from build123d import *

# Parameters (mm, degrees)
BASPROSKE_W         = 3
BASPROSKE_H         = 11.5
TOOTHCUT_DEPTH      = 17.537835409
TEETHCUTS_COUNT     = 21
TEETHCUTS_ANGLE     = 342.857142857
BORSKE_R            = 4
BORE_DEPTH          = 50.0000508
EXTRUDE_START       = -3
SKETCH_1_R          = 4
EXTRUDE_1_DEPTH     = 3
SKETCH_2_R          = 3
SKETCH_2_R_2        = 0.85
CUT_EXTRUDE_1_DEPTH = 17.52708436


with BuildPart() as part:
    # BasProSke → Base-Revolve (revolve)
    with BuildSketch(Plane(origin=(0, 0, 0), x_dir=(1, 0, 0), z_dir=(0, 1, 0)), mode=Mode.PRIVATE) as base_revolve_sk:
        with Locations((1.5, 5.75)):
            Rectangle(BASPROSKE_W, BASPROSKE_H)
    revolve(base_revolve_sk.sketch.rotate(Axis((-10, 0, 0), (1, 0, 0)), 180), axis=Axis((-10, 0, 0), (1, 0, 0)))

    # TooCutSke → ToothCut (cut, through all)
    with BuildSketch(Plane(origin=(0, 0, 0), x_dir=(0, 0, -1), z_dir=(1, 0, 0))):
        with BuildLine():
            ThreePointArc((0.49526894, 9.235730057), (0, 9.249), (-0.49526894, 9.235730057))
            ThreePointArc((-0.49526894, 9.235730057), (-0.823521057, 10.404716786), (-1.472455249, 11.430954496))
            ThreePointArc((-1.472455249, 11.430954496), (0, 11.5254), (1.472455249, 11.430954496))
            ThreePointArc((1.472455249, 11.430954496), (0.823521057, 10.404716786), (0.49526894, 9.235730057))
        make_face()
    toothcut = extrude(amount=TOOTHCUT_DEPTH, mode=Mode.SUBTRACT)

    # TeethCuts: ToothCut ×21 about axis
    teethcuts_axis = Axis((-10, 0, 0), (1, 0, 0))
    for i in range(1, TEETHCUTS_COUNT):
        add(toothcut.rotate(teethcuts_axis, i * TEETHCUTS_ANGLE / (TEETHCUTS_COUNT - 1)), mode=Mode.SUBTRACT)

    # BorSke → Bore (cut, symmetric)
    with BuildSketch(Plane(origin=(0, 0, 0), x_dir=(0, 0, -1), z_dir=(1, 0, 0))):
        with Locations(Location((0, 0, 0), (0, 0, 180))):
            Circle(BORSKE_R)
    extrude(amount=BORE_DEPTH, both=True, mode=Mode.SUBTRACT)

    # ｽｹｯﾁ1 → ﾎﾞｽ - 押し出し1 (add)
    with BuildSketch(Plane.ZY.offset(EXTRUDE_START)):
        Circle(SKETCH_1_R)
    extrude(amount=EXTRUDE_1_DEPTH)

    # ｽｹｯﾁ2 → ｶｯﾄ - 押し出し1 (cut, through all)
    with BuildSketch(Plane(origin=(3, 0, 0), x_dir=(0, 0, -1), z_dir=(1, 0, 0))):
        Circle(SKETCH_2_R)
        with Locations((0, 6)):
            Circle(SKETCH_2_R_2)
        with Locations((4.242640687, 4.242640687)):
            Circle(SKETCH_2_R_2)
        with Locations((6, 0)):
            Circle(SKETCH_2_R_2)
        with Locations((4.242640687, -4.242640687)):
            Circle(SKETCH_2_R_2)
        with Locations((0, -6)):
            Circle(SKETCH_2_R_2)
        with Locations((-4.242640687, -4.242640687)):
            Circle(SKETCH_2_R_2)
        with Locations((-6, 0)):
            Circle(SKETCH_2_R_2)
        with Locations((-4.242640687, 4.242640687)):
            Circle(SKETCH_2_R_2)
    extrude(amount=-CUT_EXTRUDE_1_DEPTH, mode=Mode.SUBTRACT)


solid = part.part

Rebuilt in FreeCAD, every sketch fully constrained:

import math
import FreeCAD as App
import Part
import Sketcher

V = App.Vector

doc = App.newDocument("Part")
body = doc.addObject("PartDesign::Body", "Body")

# Sketch on XZ plane
sketch1 = body.newObject("Sketcher::SketchObject", "Sketch")
sketch1.AttachmentSupport = (doc.getObject("XZ_Plane"), [""])
sketch1.MapMode = "FlatFace"
sketch1.addGeometry(Part.LineSegment(V(0, -11.5, 0), V(0, 0, 0)), False)
sketch1.addGeometry(Part.LineSegment(V(0, 0, 0), V(3, 0, 0)), False)
sketch1.addGeometry(Part.LineSegment(V(3, 0, 0), V(3, -11.5, 0)), False)
sketch1.addGeometry(Part.LineSegment(V(3, -11.5, 0), V(0, -11.5, 0)), False)
sketch1.addConstraint(Sketcher.Constraint("Coincident", 0, 2, 1, 1))
sketch1.addConstraint(Sketcher.Constraint("Coincident", 1, 2, 2, 1))
sketch1.addConstraint(Sketcher.Constraint("Coincident", 2, 2, 3, 1))
sketch1.addConstraint(Sketcher.Constraint("Coincident", 3, 2, 0, 1))
sketch1.addConstraint(Sketcher.Constraint("Vertical", 0))
sketch1.addConstraint(Sketcher.Constraint("Horizontal", 1))
sketch1.addConstraint(Sketcher.Constraint("Vertical", 2))
sketch1.addConstraint(Sketcher.Constraint("Horizontal", 3))
sketch1.addConstraint(Sketcher.Constraint("Coincident", 0, 2, -1, 1))
sketch1.addConstraint(Sketcher.Constraint("DistanceX", 1, 1, 1, 2, 3.0))
sketch1.addConstraint(Sketcher.Constraint("DistanceY", 0, 1, 0, 2, 11.5))
revolution = body.newObject("PartDesign::Revolution", "Revolution")
revolution.Profile = sketch1
revolution.ReferenceAxis = (sketch1, ["H_Axis"])
revolution.Angle = 360

# Sketch on YZ plane
sketch2 = body.newObject("Sketcher::SketchObject", "Sketch001")
sketch2.AttachmentSupport = (doc.getObject("YZ_Plane"), [""])
sketch2.MapMode = "FlatFace"
sketch2.addGeometry(Part.ArcOfCircle(Part.Circle(V(0, 0, 0), V(0, 0, 1), 9.2), math.radians(-3.07), math.radians(3.07)), False)
sketch2.addGeometry(Part.ArcOfCircle(Part.Circle(V(8.7, -4.7, 0), V(0, 0, 1), 4.2), math.radians(49), math.radians(83)), False)
sketch2.addGeometry(Part.ArcOfCircle(Part.Circle(V(0, 0, 0), V(0, 0, 1), 11.5), math.radians(-7.34), math.radians(7.34)), False)
sketch2.addGeometry(Part.ArcOfCircle(Part.Circle(V(8.7, 4.7, 0), V(0, 0, 1), 4.2), math.radians(-83), math.radians(-49)), False)
sketch2.addConstraint(Sketcher.Constraint("Coincident", 0, 1, 1, 2))
sketch2.addConstraint(Sketcher.Constraint("Coincident", 1, 1, 2, 1))
sketch2.addConstraint(Sketcher.Constraint("Coincident", 2, 2, 3, 2))
sketch2.addConstraint(Sketcher.Constraint("Coincident", 3, 1, 0, 2))
sketch2.addConstraint(Sketcher.Constraint("Coincident", 0, 3, -1, 1))
sketch2.addConstraint(Sketcher.Constraint("Coincident", 2, 3, -1, 1))
sketch2.addConstraint(Sketcher.Constraint("Equal", 1, 3))
sketch2.addConstraint(Sketcher.Constraint("Symmetric", 1, 3, 3, 3, -1))
sketch2.addConstraint(Sketcher.Constraint("Radius", 1, 4.2))
sketch2.addConstraint(Sketcher.Constraint("Radius", 0, 9.249))
sketch2.addConstraint(Sketcher.Constraint("Radius", 2, 11.5254))
sketch2.addConstraint(Sketcher.Constraint("DistanceX", -1, 1, 1, 3, 8.696701))
sketch2.addConstraint(Sketcher.Constraint("DistanceX", -1, 1, 0, 1, 9.23573))
pocket1 = body.newObject("PartDesign::Pocket", "Pocket")
pocket1.Profile = sketch2
pocket1.Type = "ThroughAll"
pocket1.Reversed = True
doc.recompute()

polarpattern = body.newObject("PartDesign::PolarPattern", "PolarPattern")
polarpattern.Originals = [pocket1]
polarpattern.Axis = (doc.getObject("X_Axis"), [""])
polarpattern.Angle = 360
polarpattern.Occurrences = 21
body.Tip = polarpattern

# Sketch on YZ plane
sketch3 = body.newObject("Sketcher::SketchObject", "Sketch002")
sketch3.AttachmentSupport = (doc.getObject("YZ_Plane"), [""])
sketch3.MapMode = "FlatFace"
sketch3.addGeometry(Part.Circle(V(0, 0, 0), V(0, 0, 1), 4), False)
sketch3.addConstraint(Sketcher.Constraint("Coincident", 0, 3, -1, 1))
sketch3.addConstraint(Sketcher.Constraint("Diameter", 0, 8.0))
pocket2 = body.newObject("PartDesign::Pocket", "Pocket001")
pocket2.Profile = sketch3
pocket2.Length = 100.000102
pocket2.Midplane = True

# Sketch on YZ plane
sketch4 = body.newObject("Sketcher::SketchObject", "Sketch003")
sketch4.AttachmentSupport = (doc.getObject("YZ_Plane"), [""])
sketch4.MapMode = "FlatFace"
sketch4.AttachmentOffset = App.Placement(V(0, 0, 3), App.Rotation())
sketch4.addGeometry(Part.Circle(V(0, 0, 0), V(0, 0, 1), 4), False)
sketch4.addConstraint(Sketcher.Constraint("Coincident", 0, 3, -1, 1))
sketch4.addConstraint(Sketcher.Constraint("Diameter", 0, 8.0))
pad1 = body.newObject("PartDesign::Pad", "Pad")
pad1.Profile = sketch4
pad1.Length = 3
pad1.Reversed = True

# Sketch on YZ plane
sketch5 = body.newObject("Sketcher::SketchObject", "Sketch004")
sketch5.AttachmentSupport = (doc.getObject("YZ_Plane"), [""])
sketch5.MapMode = "FlatFace"
sketch5.AttachmentOffset = App.Placement(V(0, 0, 3), App.Rotation())
sketch5.addGeometry(Part.Circle(V(0, 0, 0), V(0, 0, 1), 3), False)
sketch5.addGeometry(Part.Circle(V(6, 0, 0), V(0, 0, 1), 0.8), False)
sketch5.addGeometry(Part.Circle(V(4.2, -4.2, 0), V(0, 0, 1), 0.8), False)
sketch5.addGeometry(Part.Circle(V(0, -6, 0), V(0, 0, 1), 0.8), False)
sketch5.addGeometry(Part.Circle(V(-4.2, -4.2, 0), V(0, 0, 1), 0.8), False)
sketch5.addGeometry(Part.Circle(V(-6, 0, 0), V(0, 0, 1), 0.8), False)
sketch5.addGeometry(Part.Circle(V(-4.2, 4.2, 0), V(0, 0, 1), 0.8), False)
sketch5.addGeometry(Part.Circle(V(0, 6, 0), V(0, 0, 1), 0.8), False)
sketch5.addGeometry(Part.Circle(V(4.2, 4.2, 0), V(0, 0, 1), 0.8), False)
sketch5.addConstraint(Sketcher.Constraint("Coincident", 0, 3, -1, 1))
sketch5.addConstraint(Sketcher.Constraint("Equal", 1, 2))
sketch5.addConstraint(Sketcher.Constraint("Equal", 2, 3))
sketch5.addConstraint(Sketcher.Constraint("Equal", 3, 4))
sketch5.addConstraint(Sketcher.Constraint("Equal", 4, 5))
sketch5.addConstraint(Sketcher.Constraint("Equal", 5, 6))
sketch5.addConstraint(Sketcher.Constraint("Equal", 6, 7))
sketch5.addConstraint(Sketcher.Constraint("Equal", 7, 8))
sketch5.addConstraint(Sketcher.Constraint("Symmetric", 1, 3, 5, 3, -1, 1))
sketch5.addConstraint(Sketcher.Constraint("Symmetric", 2, 3, 6, 3, -1, 1))
sketch5.addConstraint(Sketcher.Constraint("Symmetric", 3, 3, 7, 3, -1, 1))
sketch5.addConstraint(Sketcher.Constraint("Symmetric", 4, 3, 8, 3, -1, 1))
sketch5.addConstraint(Sketcher.Constraint("Symmetric", 2, 3, 4, 3, -2))
sketch5.addConstraint(Sketcher.Constraint("PointOnObject", 1, 3, -1))
sketch5.addConstraint(Sketcher.Constraint("PointOnObject", 3, 3, -2))
sketch5.addConstraint(Sketcher.Constraint("Diameter", 0, 6.0))
sketch5.addConstraint(Sketcher.Constraint("Diameter", 1, 1.7))
sketch5.addConstraint(Sketcher.Constraint("DistanceX", -1, 1, 1, 3, 6.0))
sketch5.addConstraint(Sketcher.Constraint("DistanceY", 3, 3, -1, 1, 6.0))
sketch5.addConstraint(Sketcher.Constraint("DistanceX", -1, 1, 2, 3, 4.242641))
sketch5.addConstraint(Sketcher.Constraint("DistanceY", 2, 3, -1, 1, 4.242641))
pocket3 = body.newObject("PartDesign::Pocket", "Pocket002")
pocket3.Profile = sketch5
pocket3.Type = "ThroughAll"

doc.recompute()
